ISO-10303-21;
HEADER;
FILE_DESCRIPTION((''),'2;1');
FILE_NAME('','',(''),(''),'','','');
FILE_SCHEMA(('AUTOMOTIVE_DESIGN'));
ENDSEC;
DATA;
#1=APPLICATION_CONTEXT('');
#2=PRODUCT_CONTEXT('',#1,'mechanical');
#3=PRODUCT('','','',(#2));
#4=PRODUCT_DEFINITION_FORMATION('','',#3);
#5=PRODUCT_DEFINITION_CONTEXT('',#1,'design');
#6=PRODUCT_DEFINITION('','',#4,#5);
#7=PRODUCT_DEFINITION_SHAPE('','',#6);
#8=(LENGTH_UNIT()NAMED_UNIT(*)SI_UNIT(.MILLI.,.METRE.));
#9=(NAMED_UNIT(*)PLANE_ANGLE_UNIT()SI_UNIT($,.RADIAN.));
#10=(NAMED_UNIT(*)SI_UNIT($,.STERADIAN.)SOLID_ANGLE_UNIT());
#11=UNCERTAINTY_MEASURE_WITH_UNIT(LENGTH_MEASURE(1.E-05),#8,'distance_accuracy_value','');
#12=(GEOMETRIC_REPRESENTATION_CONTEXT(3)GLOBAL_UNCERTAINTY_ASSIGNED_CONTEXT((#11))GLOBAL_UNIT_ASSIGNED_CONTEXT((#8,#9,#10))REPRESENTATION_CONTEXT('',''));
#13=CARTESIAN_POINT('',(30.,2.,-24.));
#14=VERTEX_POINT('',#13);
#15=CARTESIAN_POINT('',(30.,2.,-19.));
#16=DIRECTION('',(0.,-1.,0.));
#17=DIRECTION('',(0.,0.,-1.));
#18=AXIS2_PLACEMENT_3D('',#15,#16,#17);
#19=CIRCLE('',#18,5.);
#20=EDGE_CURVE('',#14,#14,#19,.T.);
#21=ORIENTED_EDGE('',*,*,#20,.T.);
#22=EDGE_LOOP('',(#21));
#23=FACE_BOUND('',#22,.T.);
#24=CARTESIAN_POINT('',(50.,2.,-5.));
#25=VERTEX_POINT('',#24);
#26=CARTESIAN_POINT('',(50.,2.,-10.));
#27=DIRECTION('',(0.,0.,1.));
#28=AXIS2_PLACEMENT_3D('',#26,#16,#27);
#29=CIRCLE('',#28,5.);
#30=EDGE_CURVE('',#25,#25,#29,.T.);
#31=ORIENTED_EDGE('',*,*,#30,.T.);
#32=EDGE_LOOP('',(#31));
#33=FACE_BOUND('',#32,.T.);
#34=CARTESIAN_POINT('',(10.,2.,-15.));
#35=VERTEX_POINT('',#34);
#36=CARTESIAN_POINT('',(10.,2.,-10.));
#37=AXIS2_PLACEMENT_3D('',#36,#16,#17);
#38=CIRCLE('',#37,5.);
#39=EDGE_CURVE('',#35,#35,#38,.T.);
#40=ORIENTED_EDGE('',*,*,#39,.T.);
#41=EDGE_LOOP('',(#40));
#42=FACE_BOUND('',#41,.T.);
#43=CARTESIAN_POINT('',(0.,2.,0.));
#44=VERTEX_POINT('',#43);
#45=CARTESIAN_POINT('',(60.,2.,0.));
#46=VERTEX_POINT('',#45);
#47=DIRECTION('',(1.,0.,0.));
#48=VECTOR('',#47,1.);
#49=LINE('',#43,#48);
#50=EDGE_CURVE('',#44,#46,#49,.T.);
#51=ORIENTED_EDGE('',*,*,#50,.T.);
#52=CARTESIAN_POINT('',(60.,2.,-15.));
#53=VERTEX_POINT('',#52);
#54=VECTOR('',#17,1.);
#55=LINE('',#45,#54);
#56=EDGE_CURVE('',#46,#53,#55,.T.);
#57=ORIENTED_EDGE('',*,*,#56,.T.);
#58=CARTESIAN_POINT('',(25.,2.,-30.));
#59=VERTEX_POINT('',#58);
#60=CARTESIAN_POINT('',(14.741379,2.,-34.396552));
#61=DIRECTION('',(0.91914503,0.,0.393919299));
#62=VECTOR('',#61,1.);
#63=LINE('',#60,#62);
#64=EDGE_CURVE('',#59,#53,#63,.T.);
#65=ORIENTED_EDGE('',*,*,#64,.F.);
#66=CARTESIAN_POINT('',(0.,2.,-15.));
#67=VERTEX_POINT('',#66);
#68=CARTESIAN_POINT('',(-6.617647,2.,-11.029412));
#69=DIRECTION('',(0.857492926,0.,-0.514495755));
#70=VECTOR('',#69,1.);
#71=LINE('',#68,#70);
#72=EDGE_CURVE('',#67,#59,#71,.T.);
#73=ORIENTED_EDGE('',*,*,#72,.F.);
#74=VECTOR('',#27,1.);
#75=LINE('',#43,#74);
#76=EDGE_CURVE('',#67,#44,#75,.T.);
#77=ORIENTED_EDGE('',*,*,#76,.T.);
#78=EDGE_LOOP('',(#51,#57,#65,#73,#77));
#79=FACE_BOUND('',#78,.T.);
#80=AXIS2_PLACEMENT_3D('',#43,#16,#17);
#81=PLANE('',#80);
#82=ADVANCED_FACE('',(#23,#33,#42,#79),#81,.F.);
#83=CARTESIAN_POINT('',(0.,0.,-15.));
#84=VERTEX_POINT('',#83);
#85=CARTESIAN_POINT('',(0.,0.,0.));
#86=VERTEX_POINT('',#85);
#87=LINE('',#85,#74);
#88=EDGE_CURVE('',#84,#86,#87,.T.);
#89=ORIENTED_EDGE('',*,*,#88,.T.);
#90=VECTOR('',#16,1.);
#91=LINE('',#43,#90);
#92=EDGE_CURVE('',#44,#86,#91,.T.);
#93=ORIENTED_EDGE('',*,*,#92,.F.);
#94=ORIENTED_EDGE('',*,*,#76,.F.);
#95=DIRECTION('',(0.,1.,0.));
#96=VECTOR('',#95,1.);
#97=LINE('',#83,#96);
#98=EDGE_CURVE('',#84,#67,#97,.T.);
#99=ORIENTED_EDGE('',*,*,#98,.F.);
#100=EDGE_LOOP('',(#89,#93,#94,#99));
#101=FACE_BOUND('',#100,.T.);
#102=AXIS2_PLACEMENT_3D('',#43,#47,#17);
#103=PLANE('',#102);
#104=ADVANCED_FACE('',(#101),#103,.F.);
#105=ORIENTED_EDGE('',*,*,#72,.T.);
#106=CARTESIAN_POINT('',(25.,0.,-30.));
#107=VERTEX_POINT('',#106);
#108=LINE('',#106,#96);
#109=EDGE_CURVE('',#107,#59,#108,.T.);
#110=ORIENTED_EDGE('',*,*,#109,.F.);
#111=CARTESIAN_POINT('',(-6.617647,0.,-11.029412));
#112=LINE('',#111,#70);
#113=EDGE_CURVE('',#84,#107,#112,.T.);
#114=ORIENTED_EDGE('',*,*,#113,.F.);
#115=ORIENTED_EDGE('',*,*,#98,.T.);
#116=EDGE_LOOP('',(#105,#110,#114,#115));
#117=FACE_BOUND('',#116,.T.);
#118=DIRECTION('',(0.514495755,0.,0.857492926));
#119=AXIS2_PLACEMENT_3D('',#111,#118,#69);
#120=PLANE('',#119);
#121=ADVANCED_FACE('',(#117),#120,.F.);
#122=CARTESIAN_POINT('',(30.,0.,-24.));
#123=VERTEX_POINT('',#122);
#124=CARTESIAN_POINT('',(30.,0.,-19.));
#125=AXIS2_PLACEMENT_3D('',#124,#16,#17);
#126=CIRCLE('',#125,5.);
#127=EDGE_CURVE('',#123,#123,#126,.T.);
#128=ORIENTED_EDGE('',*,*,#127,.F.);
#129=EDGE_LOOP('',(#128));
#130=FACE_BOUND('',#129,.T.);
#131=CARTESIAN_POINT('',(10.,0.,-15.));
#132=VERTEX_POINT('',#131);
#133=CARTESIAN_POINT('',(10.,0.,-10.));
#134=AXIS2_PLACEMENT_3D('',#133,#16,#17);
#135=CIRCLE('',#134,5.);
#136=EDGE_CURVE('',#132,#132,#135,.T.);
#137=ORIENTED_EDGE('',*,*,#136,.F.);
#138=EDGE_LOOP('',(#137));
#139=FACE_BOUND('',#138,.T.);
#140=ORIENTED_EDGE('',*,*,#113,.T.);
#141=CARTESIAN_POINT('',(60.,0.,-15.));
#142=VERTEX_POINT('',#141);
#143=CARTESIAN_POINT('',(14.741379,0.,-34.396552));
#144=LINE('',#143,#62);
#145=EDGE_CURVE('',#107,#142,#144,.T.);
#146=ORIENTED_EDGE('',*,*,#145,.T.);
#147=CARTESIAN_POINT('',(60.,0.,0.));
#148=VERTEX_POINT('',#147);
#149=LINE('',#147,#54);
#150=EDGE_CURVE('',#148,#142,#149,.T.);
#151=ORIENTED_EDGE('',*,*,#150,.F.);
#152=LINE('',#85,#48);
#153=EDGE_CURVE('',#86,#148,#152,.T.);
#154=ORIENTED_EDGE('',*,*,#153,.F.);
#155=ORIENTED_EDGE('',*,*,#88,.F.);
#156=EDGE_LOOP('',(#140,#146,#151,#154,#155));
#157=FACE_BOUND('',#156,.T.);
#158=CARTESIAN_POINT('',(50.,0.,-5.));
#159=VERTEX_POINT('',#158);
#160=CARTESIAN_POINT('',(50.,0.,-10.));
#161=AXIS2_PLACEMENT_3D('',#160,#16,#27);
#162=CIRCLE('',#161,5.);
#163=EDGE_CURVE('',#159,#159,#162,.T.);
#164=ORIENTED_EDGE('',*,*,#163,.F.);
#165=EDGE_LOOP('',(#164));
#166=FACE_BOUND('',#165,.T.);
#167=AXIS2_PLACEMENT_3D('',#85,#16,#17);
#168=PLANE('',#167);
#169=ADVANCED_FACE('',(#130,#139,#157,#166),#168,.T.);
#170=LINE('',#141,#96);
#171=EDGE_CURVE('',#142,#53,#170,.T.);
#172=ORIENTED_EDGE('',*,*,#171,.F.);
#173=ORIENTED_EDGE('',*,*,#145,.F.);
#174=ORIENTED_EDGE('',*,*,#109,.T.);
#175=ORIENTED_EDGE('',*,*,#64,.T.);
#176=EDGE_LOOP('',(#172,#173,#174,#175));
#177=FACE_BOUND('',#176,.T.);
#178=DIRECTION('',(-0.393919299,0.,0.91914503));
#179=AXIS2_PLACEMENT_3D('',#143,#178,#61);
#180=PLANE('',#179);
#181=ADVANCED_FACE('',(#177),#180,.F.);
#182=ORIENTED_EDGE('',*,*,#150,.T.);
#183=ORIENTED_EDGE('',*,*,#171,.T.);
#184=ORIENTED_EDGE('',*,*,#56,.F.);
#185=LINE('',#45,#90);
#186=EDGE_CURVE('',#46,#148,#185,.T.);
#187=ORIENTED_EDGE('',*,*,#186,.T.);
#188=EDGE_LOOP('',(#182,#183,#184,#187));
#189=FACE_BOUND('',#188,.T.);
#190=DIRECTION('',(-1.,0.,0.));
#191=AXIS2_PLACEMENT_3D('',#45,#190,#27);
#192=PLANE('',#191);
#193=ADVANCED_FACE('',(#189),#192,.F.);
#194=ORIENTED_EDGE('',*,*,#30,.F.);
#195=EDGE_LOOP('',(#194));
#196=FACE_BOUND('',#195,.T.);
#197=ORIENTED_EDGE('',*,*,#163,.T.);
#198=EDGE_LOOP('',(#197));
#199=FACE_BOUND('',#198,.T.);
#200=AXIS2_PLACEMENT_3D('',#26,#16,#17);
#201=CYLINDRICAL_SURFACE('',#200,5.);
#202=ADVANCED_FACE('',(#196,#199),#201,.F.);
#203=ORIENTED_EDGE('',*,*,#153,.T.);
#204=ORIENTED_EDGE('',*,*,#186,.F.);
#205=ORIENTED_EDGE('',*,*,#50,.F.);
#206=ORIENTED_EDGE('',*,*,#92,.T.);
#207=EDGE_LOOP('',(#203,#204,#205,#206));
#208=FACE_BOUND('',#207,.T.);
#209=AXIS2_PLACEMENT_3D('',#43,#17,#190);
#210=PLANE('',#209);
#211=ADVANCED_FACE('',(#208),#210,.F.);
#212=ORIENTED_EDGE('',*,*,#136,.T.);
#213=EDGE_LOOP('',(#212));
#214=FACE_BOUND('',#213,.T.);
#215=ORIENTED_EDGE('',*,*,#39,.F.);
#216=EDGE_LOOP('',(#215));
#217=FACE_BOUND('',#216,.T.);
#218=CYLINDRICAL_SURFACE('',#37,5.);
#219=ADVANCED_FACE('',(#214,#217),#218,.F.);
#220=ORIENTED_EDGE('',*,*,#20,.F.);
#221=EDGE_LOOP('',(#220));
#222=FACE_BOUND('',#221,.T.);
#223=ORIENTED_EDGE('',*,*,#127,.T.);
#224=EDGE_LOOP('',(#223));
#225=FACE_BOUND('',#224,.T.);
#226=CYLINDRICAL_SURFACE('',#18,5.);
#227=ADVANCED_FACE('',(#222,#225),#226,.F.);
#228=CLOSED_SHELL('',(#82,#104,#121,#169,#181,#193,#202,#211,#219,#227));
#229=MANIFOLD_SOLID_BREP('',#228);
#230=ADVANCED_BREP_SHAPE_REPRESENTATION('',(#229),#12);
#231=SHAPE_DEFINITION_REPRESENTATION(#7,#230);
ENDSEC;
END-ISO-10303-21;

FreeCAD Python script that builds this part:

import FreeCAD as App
import Part
import Sketcher

doc = App.newDocument("Part")
body = doc.addObject("PartDesign::Body", "Body")

sketch1 = body.newObject("Sketcher::SketchObject", "Sketch")
sketch1.AttachmentSupport = (doc.getObject("XZ_Plane"), [""])
sketch1.MapMode = "FlatFace"
sketch1.addGeometry([
    Part.LineSegment(App.Vector(0, -30, 0), App.Vector(0, 0, 0)),
    Part.LineSegment(App.Vector(0, 0, 0), App.Vector(60, 0, 0)),
    Part.LineSegment(App.Vector(60, 0, 0), App.Vector(60, -30, 0)),
    Part.LineSegment(App.Vector(60, -30, 0), App.Vector(0, -30, 0)),
], False)
sketch1.addConstraint([
    Sketcher.Constraint("Coincident", 0, 2, 1, 1),
    Sketcher.Constraint("Coincident", 1, 2, 2, 1),
    Sketcher.Constraint("Coincident", 2, 2, 3, 1),
    Sketcher.Constraint("Coincident", 3, 2, 0, 1),
    Sketcher.Constraint("Vertical", 0),
    Sketcher.Constraint("Horizontal", 1),
    Sketcher.Constraint("Vertical", 2),
    Sketcher.Constraint("Horizontal", 3),
    Sketcher.Constraint("Coincident", 0, 2, -1, 1),
    Sketcher.Constraint("DistanceX", 1, 1, 1, 2, 60.0),
    Sketcher.Constraint("DistanceY", 0, 1, 0, 2, 30.0),
])
pad1 = body.newObject("PartDesign::Pad", "Pad")
pad1.Profile = sketch1
pad1.Length = 2
pad1.Reversed = True

sketch2 = body.newObject("Sketcher::SketchObject", "Sketch001")
sketch2.AttachmentSupport = (doc.getObject("XZ_Plane"), [""])
sketch2.MapMode = "FlatFace"
sketch2.AttachmentOffset = App.Placement(App.Vector(0, 0, -2), App.Rotation())
sketch2.addGeometry([
    Part.LineSegment(App.Vector(60, -15, 0), App.Vector(60, -30, 0)),
    Part.LineSegment(App.Vector(60, -30, 0), App.Vector(25, -30, 0)),
    Part.LineSegment(App.Vector(25, -30, 0), App.Vector(60, -15, 0)),
    Part.LineSegment(App.Vector(0, -15, 0), App.Vector(25, -30, 0)),
    Part.LineSegment(App.Vector(25, -30, 0), App.Vector(0, -30, 0)),
    Part.LineSegment(App.Vector(0, -30, 0), App.Vector(0, -15, 0)),
], False)
sketch2.addConstraint([
    Sketcher.Constraint("Coincident", 0, 2, 1, 1),
    Sketcher.Constraint("Coincident", 1, 2, 2, 1),
    Sketcher.Constraint("Coincident", 2, 2, 0, 1),
    Sketcher.Constraint("Coincident", 3, 2, 4, 1),
    Sketcher.Constraint("Coincident", 4, 2, 5, 1),
    Sketcher.Constraint("Coincident", 5, 2, 3, 1),
    Sketcher.Constraint("Vertical", 0),
    Sketcher.Constraint("Horizontal", 1),
    Sketcher.Constraint("Horizontal", 4),
    Sketcher.Constraint("Vertical", 5),
    Sketcher.Constraint("Coincident", 3, 2, 1, 2),
    Sketcher.Constraint("PointOnObject", 4, 2, -2),
    Sketcher.Constraint("Horizontal", 2, 2, 5, 2),
    Sketcher.Constraint("DistanceX", 1, 2, 1, 1, 35.0),
    Sketcher.Constraint("DistanceX", 4, 2, 4, 1, 25.0),
    Sketcher.Constraint("DistanceY", 0, 2, 0, 1, 15.0),
    Sketcher.Constraint("DistanceY", 0, 2, -1, 1, 30.0),
])
pocket1 = body.newObject("PartDesign::Pocket", "Pocket")
pocket1.Profile = sketch2
pocket1.Type = "ThroughAll"
pocket1.Reversed = True

sketch3 = body.newObject("Sketcher::SketchObject", "Sketch002")
sketch3.AttachmentSupport = (doc.getObject("XZ_Plane"), [""])
sketch3.MapMode = "FlatFace"
sketch3.addGeometry([
    Part.Circle(App.Vector(10, -10, 0), App.Vector(0, 0, 1), 5),
    Part.Circle(App.Vector(50, -10, 0), App.Vector(0, 0, 1), 5),
    Part.Circle(App.Vector(30, -19, 0), App.Vector(0, 0, 1), 5),
], False)
sketch3.addConstraint([
    Sketcher.Constraint("Equal", 0, 1),
    Sketcher.Constraint("Equal", 1, 2),
    Sketcher.Constraint("Horizontal", 0, 3, 1, 3),
    Sketcher.Constraint("Diameter", 0, 10.0),
    Sketcher.Constraint("DistanceX", -1, 1, 0, 3, 10.0),
    Sketcher.Constraint("DistanceY", 0, 3, -1, 1, 10.0),
    Sketcher.Constraint("DistanceX", -1, 1, 1, 3, 50.0),
    Sketcher.Constraint("DistanceX", -1, 1, 2, 3, 30.0),
    Sketcher.Constraint("DistanceY", 2, 3, -1, 1, 19.0),
])
pocket2 = body.newObject("PartDesign::Pocket", "Pocket001")
pocket2.Profile = sketch3
pocket2.Type = "ThroughAll"

doc.recompute()
